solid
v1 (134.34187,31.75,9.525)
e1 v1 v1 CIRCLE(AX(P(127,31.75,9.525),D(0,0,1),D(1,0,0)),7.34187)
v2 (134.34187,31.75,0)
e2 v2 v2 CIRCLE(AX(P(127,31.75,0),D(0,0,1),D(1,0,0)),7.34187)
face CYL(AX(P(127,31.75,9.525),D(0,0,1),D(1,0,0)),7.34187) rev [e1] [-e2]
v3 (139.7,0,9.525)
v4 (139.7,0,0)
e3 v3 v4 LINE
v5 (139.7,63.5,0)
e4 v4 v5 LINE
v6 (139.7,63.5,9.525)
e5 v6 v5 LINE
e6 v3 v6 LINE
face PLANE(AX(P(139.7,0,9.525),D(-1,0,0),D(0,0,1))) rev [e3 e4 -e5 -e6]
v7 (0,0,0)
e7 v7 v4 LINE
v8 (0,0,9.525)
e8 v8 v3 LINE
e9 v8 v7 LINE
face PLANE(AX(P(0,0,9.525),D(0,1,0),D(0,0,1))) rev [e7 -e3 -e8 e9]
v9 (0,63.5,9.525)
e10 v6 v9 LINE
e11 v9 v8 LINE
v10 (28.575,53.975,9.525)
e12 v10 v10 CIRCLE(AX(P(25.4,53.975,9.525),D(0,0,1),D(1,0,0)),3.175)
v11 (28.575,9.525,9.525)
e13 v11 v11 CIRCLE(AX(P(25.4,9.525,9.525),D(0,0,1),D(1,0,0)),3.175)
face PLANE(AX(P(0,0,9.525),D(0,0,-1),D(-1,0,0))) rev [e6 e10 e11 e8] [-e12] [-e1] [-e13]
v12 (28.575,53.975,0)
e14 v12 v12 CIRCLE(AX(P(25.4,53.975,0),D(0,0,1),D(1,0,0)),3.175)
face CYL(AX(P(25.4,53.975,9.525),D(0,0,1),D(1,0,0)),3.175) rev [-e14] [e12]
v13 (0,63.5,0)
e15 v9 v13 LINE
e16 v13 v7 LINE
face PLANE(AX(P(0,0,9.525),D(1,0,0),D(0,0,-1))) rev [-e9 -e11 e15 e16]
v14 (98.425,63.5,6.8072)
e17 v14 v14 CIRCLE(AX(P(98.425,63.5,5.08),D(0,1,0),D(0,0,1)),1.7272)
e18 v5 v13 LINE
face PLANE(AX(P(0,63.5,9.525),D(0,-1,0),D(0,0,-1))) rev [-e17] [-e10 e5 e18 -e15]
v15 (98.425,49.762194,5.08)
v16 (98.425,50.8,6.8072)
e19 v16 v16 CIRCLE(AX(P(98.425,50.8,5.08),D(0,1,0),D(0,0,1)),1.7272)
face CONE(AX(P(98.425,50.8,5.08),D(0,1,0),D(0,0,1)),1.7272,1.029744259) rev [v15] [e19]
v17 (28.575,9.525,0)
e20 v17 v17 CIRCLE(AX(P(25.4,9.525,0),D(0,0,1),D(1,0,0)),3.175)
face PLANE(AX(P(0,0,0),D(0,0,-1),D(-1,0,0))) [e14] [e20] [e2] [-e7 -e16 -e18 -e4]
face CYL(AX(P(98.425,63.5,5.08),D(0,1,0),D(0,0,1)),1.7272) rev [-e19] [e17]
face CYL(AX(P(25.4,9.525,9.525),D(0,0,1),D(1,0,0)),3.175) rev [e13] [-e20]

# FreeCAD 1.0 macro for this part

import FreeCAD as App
import Part
import Sketcher
from FreeCAD import Vector
Q = App.Units.Quantity


def add_polygon(sketch, points):
    """Adds a closed chain of lines whose ends are joined by coincident constraints."""
    first, n = sketch.GeometryCount, len(points)
    for a, b in zip(points, points[1:] + points[:1]):
        sketch.addGeometry(Part.LineSegment(App.Vector(*a, 0), App.Vector(*b, 0)), False)
    for i in range(n):
        sketch.addConstraint(Sketcher.Constraint("Coincident", first + i, 2, first + (i + 1) % n, 1))

doc = App.newDocument("Part")
body = doc.addObject("PartDesign::Body", "Body")

# Sketch on XY plane
sketch1 = body.newObject("Sketcher::SketchObject", "Sketch")
sketch1.AttachmentSupport = (doc.getObject("XY_Plane"), [""])
sketch1.MapMode = "FlatFace"
add_polygon(sketch1, [(0, 64), (0, 0), (140, 0), (140, 64)])  # lines 0-3
sketch1.addConstraint(Sketcher.Constraint("Vertical", 0))
sketch1.addConstraint(Sketcher.Constraint("Horizontal", 1))
sketch1.addConstraint(Sketcher.Constraint("Vertical", 2))
sketch1.addConstraint(Sketcher.Constraint("Horizontal", 3))
sketch1.addConstraint(Sketcher.Constraint("Coincident", 0, 2, -1, 1))
sketch1.addConstraint(Sketcher.Constraint("DistanceX", 1, 1, 1, 2, Q("5.5 in")))
sketch1.addConstraint(Sketcher.Constraint("DistanceY", 0, 2, 0, 1, Q("2.5 in")))
pad1 = body.newObject("PartDesign::Pad", "Pad")
pad1.Profile = sketch1
pad1.Length = Q("0.375 in")

# Sketch on XY plane
sketch2 = body.newObject("Sketcher::SketchObject", "Sketch001")
sketch2.AttachmentSupport = (doc.getObject("XY_Plane"), [""])
sketch2.MapMode = "FlatFace"
sketch2.AttachmentOffset = App.Placement(Vector(0, 0, 0.375 * 25.4), App.Rotation())
sketch2.addGeometry(Part.Circle(Vector(127, 32, 0), Vector(0, 0, 1), 7), False)
sketch2.addConstraint(Sketcher.Constraint("DistanceX", -1, 1, 0, 3, Q("5 in")))
sketch2.addConstraint(Sketcher.Constraint("Diameter", 0, Q("0.5781 in")))
sketch2.addConstraint(Sketcher.Constraint("DistanceY", -1, 1, 0, 3, Q("1.25 in")))
doc.recompute()
hole = body.newObject("PartDesign::Hole", "Hole")
hole.Profile = sketch2
hole.ThreadType = "None"
hole.Diameter = Q("0.5781 in")
hole.DepthType = "ThroughAll"

# Sketch on XY plane
sketch3 = body.newObject("Sketcher::SketchObject", "Sketch002")
sketch3.AttachmentSupport = (doc.getObject("XY_Plane"), [""])
sketch3.MapMode = "FlatFace"
sketch3.AttachmentOffset = App.Placement(Vector(0, 0, 0.375 * 25.4), App.Rotation())
sketch3.addGeometry(Part.Circle(Vector(25.4, 54, 0), Vector(0, 0, 1), 3.2), False)
sketch3.addGeometry(Part.Circle(Vector(25.4, 9.5, 0), Vector(0, 0, 1), 3.2), False)
sketch3.addConstraint(Sketcher.Constraint("Equal", 0, 1))
sketch3.addConstraint(Sketcher.Constraint("Vertical", 0, 3, 1, 3))
sketch3.addConstraint(Sketcher.Constraint("Diameter", 0, Q("0.25 in")))
sketch3.addConstraint(Sketcher.Constraint("DistanceX", -1, 1, 0, 3, Q("1 in")))
sketch3.addConstraint(Sketcher.Constraint("DistanceY", 1, 3, 0, 3, Q("1.75 in")))
sketch3.addConstraint(Sketcher.Constraint("DistanceY", -1, 1, 0, 3, Q("2.125 in")))
doc.recompute()
hole2 = body.newObject("PartDesign::Hole", "Hole001")
hole2.Profile = sketch3
hole2.ThreadType = "None"
hole2.Diameter = Q("0.25 in")
hole2.DepthType = "ThroughAll"

# Sketch on XZ plane
sketch4 = body.newObject("Sketcher::SketchObject", "Sketch003")
sketch4.AttachmentSupport = (doc.getObject("XZ_Plane"), [""])
sketch4.MapMode = "FlatFace"
sketch4.AttachmentOffset = App.Placement(Vector(0, 0, -2.5 * 25.4), App.Rotation())
sketch4.addGeometry(Part.Circle(Vector(98.4, 5.1, 0), Vector(0, 0, 1), 1.7), False)
sketch4.addConstraint(Sketcher.Constraint("Diameter", 0, Q("0.136 in")))
sketch4.addConstraint(Sketcher.Constraint("DistanceY", -1, 1, 0, 3, Q("0.2 in")))
sketch4.addConstraint(Sketcher.Constraint("DistanceX", -1, 1, 0, 3, Q("3.875 in")))
doc.recompute()
hole3 = body.newObject("PartDesign::Hole", "Hole002")
hole3.Profile = sketch4
hole3.ThreadType = "None"
hole3.Diameter = Q("0.136 in")
hole3.DepthType = "Dimension"
hole3.Depth = Q("0.5 in")
hole3.DrillPoint = "Angled"
hole3.DrillPointAngle = 118
hole3.Reversed = True

doc.recompute()
